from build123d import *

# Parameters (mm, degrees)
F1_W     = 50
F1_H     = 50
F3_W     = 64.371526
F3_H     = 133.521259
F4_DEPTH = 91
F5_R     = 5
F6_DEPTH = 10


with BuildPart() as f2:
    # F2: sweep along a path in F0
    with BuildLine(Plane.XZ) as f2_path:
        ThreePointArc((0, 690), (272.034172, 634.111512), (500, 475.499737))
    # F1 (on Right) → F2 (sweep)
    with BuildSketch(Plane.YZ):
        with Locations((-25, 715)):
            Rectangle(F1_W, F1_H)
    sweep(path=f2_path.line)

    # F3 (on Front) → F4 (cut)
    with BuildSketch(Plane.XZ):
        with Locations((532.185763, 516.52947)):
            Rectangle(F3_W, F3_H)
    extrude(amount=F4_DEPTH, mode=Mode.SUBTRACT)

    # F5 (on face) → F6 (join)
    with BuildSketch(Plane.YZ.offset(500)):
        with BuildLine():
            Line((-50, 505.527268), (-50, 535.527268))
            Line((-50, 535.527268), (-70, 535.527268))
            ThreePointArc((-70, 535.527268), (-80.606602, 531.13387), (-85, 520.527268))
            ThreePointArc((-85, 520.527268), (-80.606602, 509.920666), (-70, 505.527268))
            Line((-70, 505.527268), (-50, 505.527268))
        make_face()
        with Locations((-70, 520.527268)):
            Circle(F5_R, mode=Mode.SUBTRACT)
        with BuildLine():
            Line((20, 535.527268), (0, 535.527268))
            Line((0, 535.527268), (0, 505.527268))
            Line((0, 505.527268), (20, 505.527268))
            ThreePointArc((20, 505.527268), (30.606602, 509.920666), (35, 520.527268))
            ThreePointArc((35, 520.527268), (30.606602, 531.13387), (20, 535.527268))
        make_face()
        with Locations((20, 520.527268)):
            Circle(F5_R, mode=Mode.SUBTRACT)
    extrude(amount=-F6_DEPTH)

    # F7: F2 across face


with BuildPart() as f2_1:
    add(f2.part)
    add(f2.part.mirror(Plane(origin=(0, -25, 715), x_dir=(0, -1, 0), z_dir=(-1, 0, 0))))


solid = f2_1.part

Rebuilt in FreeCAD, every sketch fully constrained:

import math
import FreeCAD as App
import Part
import Sketcher

V = App.Vector
Q = App.Units.Quantity

doc = App.newDocument("Part")
body = doc.addObject("PartDesign::Body", "Body")

sketch1 = body.newObject("Sketcher::SketchObject", "Sketch")
sketch1.AttachmentSupport = (doc.getObject("YZ_Plane"), [""])
sketch1.MapMode = "FlatFace"
sketch1.addGeometry(Part.LineSegment(V(-50, 740, 0), V(-50, 690, 0)), False)
sketch1.addGeometry(Part.LineSegment(V(-50, 690, 0), V(0, 690, 0)), False)
sketch1.addGeometry(Part.LineSegment(V(0, 690, 0), V(0, 740, 0)), False)
sketch1.addGeometry(Part.LineSegment(V(0, 740, 0), V(-50, 740, 0)), False)
sketch1.addConstraint(Sketcher.Constraint("Coincident", 0, 2, 1, 1))
sketch1.addConstraint(Sketcher.Constraint("Coincident", 1, 2, 2, 1))
sketch1.addConstraint(Sketcher.Constraint("Coincident", 2, 2, 3, 1))
sketch1.addConstraint(Sketcher.Constraint("Coincident", 3, 2, 0, 1))
sketch1.addConstraint(Sketcher.Constraint("Vertical", 0))
sketch1.addConstraint(Sketcher.Constraint("Horizontal", 1))
sketch1.addConstraint(Sketcher.Constraint("Vertical", 2))
sketch1.addConstraint(Sketcher.Constraint("Horizontal", 3))
sketch1.addConstraint(Sketcher.Constraint("PointOnObject", 1, 2, -2))
sketch1.addConstraint(Sketcher.Constraint("Equal", 3, 0))
sketch1.addConstraint(Sketcher.Constraint("DistanceX", 1, 1, 1, 2, Q("50 mm")))
sketch1.addConstraint(Sketcher.Constraint("DistanceY", -1, 1, 0, 2, Q("690 mm")))

sketch2 = body.newObject("Sketcher::SketchObject", "Sketch001")
sketch2.AttachmentSupport = (doc.getObject("XZ_Plane"), [""])
sketch2.MapMode = "FlatFace"
sketch2.addGeometry(Part.ArcOfCircle(Part.Circle(V(0.000001, 0.000004, 0), V(0, 0, 1), 689.999996), math.radians(43.561284), math.radians(90)), False)
sketch2.addConstraint(Sketcher.Constraint("Coincident", 0, 3, -1, 1))
sketch2.addConstraint(Sketcher.Constraint("PointOnObject", 0, 2, -2))
sketch2.addConstraint(Sketcher.Constraint("DistanceX", -1, 1, 0, 1, Q("500 mm")))
sketch2.addConstraint(Sketcher.Constraint("DistanceY", -1, 1, 0, 2, Q("690 mm")))
doc.recompute()

additivepipe = body.newObject("PartDesign::AdditivePipe", "AdditivePipe")
additivepipe.Profile = sketch1
additivepipe.Spine = (sketch2, ["Edge1"])

sketch3 = body.newObject("Sketcher::SketchObject", "Sketch002")
sketch3.AttachmentSupport = (doc.getObject("XZ_Plane"), [""])
sketch3.MapMode = "FlatFace"
sketch3.addGeometry(Part.LineSegment(V(500, 583.290099, 0), V(500, 449.768841, 0)), False)
sketch3.addGeometry(Part.LineSegment(V(500, 449.768841, 0), V(564.371526, 449.768841, 0)), False)
sketch3.addGeometry(Part.LineSegment(V(564.371526, 449.768841, 0), V(564.371526, 583.290099, 0)), False)
sketch3.addGeometry(Part.LineSegment(V(564.371526, 583.290099, 0), V(500, 583.290099, 0)), False)
sketch3.addConstraint(Sketcher.Constraint("Coincident", 0, 2, 1, 1))
sketch3.addConstraint(Sketcher.Constraint("Coincident", 1, 2, 2, 1))
sketch3.addConstraint(Sketcher.Constraint("Coincident", 2, 2, 3, 1))
sketch3.addConstraint(Sketcher.Constraint("Coincident", 3, 2, 0, 1))
sketch3.addConstraint(Sketcher.Constraint("Vertical", 0))
sketch3.addConstraint(Sketcher.Constraint("Horizontal", 1))
sketch3.addConstraint(Sketcher.Constraint("Vertical", 2))
sketch3.addConstraint(Sketcher.Constraint("Horizontal", 3))
sketch3.addConstraint(Sketcher.Constraint("DistanceX", -1, 1, 0, 2, Q("500 mm")))
sketch3.addConstraint(Sketcher.Constraint("DistanceY", 0, 2, 0, 1, Q("133.521259 mm")))
sketch3.addConstraint(Sketcher.Constraint("DistanceY", -1, 1, 2, 2, Q("583.290099 mm")))
sketch3.addConstraint(Sketcher.Constraint("DistanceX", 1, 1, 1, 2, Q("64.371526 mm")))
pocket1 = body.newObject("PartDesign::Pocket", "Pocket")
pocket1.Profile = sketch3
pocket1.Length = 91
pocket1.Reversed = True

sketch4 = body.newObject("Sketcher::SketchObject", "Sketch003")
sketch4.AttachmentSupport = (doc.getObject("YZ_Plane"), [""])
sketch4.MapMode = "FlatFace"
sketch4.AttachmentOffset = App.Placement(V(0, 0, 500), App.Rotation())
sketch4.addGeometry(Part.LineSegment(V(-50, 505.527268, 0), V(-50, 535.527268, 0)), False)
sketch4.addGeometry(Part.LineSegment(V(-50, 535.527268, 0), V(-70, 535.527268, 0)), False)
sketch4.addGeometry(Part.ArcOfCircle(Part.Circle(V(-70.000001, 520.527269, 0), V(0, 0, 1), 14.999999), math.radians(89.999996), math.radians(180.000004)), False)
sketch4.addGeometry(Part.ArcOfCircle(Part.Circle(V(-70.000001, 520.527267, 0), V(0, 0, 1), 14.999999), math.radians(179.999996), math.radians(270.000004)), False)
sketch4.addGeometry(Part.LineSegment(V(-70, 505.527268, 0), V(-50, 505.527268, 0)), False)
sketch4.addGeometry(Part.Circle(V(-70, 520.527268, 0), V(0, 0, 1), 5), False)
sketch4.addGeometry(Part.LineSegment(V(20, 535.527268, 0), V(0, 535.527268, 0)), False)
sketch4.addGeometry(Part.LineSegment(V(0, 535.527268, 0), V(0, 505.527268, 0)), False)
sketch4.addGeometry(Part.LineSegment(V(0, 505.527268, 0), V(20, 505.527268, 0)), False)
sketch4.addGeometry(Part.ArcOfCircle(Part.Circle(V(20.000001, 520.527267, 0), V(0, 0, 1), 14.999999), math.radians(-90.000004), math.radians(0.000004)), False)
sketch4.addGeometry(Part.ArcOfCircle(Part.Circle(V(20.000001, 520.527269, 0), V(0, 0, 1), 14.999999), math.radians(-0.000004), math.radians(90.000004)), False)
sketch4.addGeometry(Part.Circle(V(20, 520.527268, 0), V(0, 0, 1), 5), False)
sketch4.addConstraint(Sketcher.Constraint("Coincident", 0, 2, 1, 1))
sketch4.addConstraint(Sketcher.Constraint("Tangent", 1, 2, 2, 1))
sketch4.addConstraint(Sketcher.Constraint("Tangent", 2, 2, 3, 1))
sketch4.addConstraint(Sketcher.Constraint("Tangent", 3, 2, 4, 1))
sketch4.addConstraint(Sketcher.Constraint("Coincident", 4, 2, 0, 1))
sketch4.addConstraint(Sketcher.Constraint("Coincident", 6, 2, 7, 1))
sketch4.addConstraint(Sketcher.Constraint("Coincident", 7, 2, 8, 1))
sketch4.addConstraint(Sketcher.Constraint("Tangent", 8, 2, 9, 1))
sketch4.addConstraint(Sketcher.Constraint("Tangent", 9, 2, 10, 1))
sketch4.addConstraint(Sketcher.Constraint("Tangent", 10, 2, 6, 1))
sketch4.addConstraint(Sketcher.Constraint("Vertical", 0))
sketch4.addConstraint(Sketcher.Constraint("Horizontal", 1))
sketch4.addConstraint(Sketcher.Constraint("Horizontal", 4))
sketch4.addConstraint(Sketcher.Constraint("Horizontal", 6))
sketch4.addConstraint(Sketcher.Constraint("Vertical", 7))
sketch4.addConstraint(Sketcher.Constraint("Horizontal", 8))
sketch4.addConstraint(Sketcher.Constraint("Coincident", 5, 3, 2, 3))
sketch4.addConstraint(Sketcher.Constraint("Coincident", 11, 3, 9, 3))
sketch4.addConstraint(Sketcher.Constraint("Equal", 2, 3))
sketch4.addConstraint(Sketcher.Constraint("Equal", 3, 9))
sketch4.addConstraint(Sketcher.Constraint("Equal", 9, 10))
sketch4.addConstraint(Sketcher.Constraint("Equal", 5, 11))
sketch4.addConstraint(Sketcher.Constraint("PointOnObject", 6, 2, -2))
sketch4.addConstraint(Sketcher.Constraint("Horizontal", 5, 3, 9, 3))
sketch4.addConstraint(Sketcher.Constraint("Horizontal", 11, 3, 2, 2))
sketch4.addConstraint(Sketcher.Constraint("Horizontal", 2, 2, 9, 2))
sketch4.addConstraint(Sketcher.Constraint("Equal", 4, 6))
sketch4.addConstraint(Sketcher.Constraint("Diameter", 5, Q("10 mm")))
sketch4.addConstraint(Sketcher.Constraint("Radius", 2, Q("14.999999 mm")))
sketch4.addConstraint(Sketcher.Constraint("DistanceX", 1, 2, 1, 1, Q("20 mm")))
sketch4.addConstraint(Sketcher.Constraint("DistanceX", 2, 3, -1, 1, Q("70.000001 mm")))
sketch4.addConstraint(Sketcher.Constraint("DistanceY", -1, 1, 2, 3, Q("520.527269 mm")))
pad1 = body.newObject("PartDesign::Pad", "Pad")
pad1.Profile = sketch4
pad1.Length = 10
pad1.Reversed = True
body2 = doc.addObject("PartDesign::Body", "Body001")
doc.recompute()

body2.BaseFeature = body
doc.recompute()

mirroring = doc.addObject("Part::Mirroring", "Mirroring")
mirroring.Source = body
mirroring.Base = V(0, -25, 715)
mirroring.Normal = V(-1, 0, 0)
body3 = doc.addObject("PartDesign::Body", "Body002")
body3.BaseFeature = mirroring
boolean = body2.newObject("PartDesign::Boolean", "Boolean")
boolean.Type = "Fuse"
boolean.addObjects([body3])
doc.recompute()
mirroring.Visibility = False

doc.recompute()
